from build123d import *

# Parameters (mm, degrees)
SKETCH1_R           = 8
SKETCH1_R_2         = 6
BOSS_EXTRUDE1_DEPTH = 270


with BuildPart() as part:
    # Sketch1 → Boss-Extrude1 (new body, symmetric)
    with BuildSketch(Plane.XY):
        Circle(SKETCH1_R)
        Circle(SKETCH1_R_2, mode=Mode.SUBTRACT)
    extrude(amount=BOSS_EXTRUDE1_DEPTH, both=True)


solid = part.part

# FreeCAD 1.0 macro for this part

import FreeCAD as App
import Part
import Sketcher

doc = App.newDocument("Part")
params = doc.addObject("Spreadsheet::Sheet", "Params")
for row, (alias, value) in enumerate([
    ("sketch1_diameter", "16 mm"),
    ("sketch1_diameter2", "12 mm"),
    ("pad1_length", "540 mm"),
], start=1):
    params.set(f"A{row}", alias)
    params.set(f"B{row}", "=" + value)
    params.setAlias(f"B{row}", alias)

body = doc.addObject("PartDesign::Body", "Body")

sketch1 = doc.addObject("Sketcher::SketchObject", "Sketch")
body.addObject(sketch1)
sketch1.AttachmentSupport = (doc.XY_Plane, [""])
sketch1.MapMode = "FlatFace"
sketch1.addGeometry([
    Part.Circle(App.Vector(0, 0, 0), App.Vector(0, 0, 1), 8),
    Part.Circle(App.Vector(0, 0, 0), App.Vector(0, 0, 1), 6),
], False)
sketch1.addConstraint([
    Sketcher.Constraint("Coincident", 0, 3, -1, 1),
    Sketcher.Constraint("Coincident", 1, 3, -1, 1),
    Sketcher.Constraint("Diameter", 0, 16.0),
    Sketcher.Constraint("Diameter", 1, 12.0),
])
sketch1.setExpression("Constraints[2]", "Params.sketch1_diameter")
sketch1.setExpression("Constraints[3]", "Params.sketch1_diameter2")
pad1 = doc.addObject("PartDesign::Pad", "Pad")
body.addObject(pad1)
pad1.Profile = sketch1
pad1.setExpression("Length", "Params.pad1_length")
pad1.Midplane = True

doc.recompute()
